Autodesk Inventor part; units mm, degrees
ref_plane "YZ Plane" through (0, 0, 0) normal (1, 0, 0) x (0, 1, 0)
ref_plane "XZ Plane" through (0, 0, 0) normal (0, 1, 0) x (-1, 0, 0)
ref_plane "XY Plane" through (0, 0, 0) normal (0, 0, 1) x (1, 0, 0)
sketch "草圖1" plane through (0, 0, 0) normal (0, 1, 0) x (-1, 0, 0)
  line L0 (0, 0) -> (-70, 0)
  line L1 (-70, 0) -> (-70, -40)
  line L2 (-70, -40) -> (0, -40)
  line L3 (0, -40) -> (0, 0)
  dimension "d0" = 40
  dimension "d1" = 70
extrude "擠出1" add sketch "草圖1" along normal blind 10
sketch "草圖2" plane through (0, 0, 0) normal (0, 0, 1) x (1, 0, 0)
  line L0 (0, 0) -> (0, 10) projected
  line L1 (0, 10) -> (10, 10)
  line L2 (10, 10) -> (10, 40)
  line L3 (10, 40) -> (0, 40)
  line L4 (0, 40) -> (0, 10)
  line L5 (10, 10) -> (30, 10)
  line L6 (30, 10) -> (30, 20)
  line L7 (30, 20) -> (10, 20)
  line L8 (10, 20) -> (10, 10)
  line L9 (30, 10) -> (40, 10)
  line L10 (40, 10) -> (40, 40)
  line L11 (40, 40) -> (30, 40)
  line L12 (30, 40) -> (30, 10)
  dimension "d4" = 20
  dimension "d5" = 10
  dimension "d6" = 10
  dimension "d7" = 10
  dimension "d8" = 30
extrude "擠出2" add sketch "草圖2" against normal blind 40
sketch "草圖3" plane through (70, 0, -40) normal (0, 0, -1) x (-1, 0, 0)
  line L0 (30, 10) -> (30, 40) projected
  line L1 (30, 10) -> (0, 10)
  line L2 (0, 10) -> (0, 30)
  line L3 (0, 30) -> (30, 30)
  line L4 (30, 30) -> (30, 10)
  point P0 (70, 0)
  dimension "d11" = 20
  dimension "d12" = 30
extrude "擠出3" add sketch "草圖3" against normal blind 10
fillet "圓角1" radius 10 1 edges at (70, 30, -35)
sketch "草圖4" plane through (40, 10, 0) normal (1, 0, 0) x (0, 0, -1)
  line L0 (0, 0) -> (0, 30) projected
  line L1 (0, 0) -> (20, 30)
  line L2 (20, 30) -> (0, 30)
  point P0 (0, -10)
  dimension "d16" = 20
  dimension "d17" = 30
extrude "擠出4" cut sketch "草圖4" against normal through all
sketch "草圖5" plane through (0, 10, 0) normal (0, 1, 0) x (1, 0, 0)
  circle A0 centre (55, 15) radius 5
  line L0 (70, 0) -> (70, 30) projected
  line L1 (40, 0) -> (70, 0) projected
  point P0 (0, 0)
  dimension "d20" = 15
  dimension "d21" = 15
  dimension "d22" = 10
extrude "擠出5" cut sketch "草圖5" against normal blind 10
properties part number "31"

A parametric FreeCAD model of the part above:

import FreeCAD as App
import Part
import Sketcher
Q = App.Units.Quantity


def edges_at(feature, points):
    """Names of the edges that pass closest to the given points."""
    edges = feature.Shape.Edges
    near = lambda p: min(range(len(edges)), key=lambda i: edges[i].distToShape(Part.Vertex(*p))[0])
    return sorted({f"Edge{near(p) + 1}" for p in points})


def add_polygon(sketch, points):
    """Adds a closed chain of lines whose ends are joined by coincident constraints."""
    first, n = sketch.GeometryCount, len(points)
    for a, b in zip(points, points[1:] + points[:1]):
        sketch.addGeometry(Part.LineSegment(App.Vector(*a, 0), App.Vector(*b, 0)), False)
    for i in range(n):
        sketch.addConstraint(Sketcher.Constraint("Coincident", first + i, 2, first + (i + 1) % n, 1))

doc = App.newDocument("Part")
body = doc.addObject("PartDesign::Body", "Body")

# Sketch on XZ plane
sketch1 = body.newObject("Sketcher::SketchObject", "Sketch")
sketch1.AttachmentSupport = (doc.getObject("XZ_Plane"), [""])
sketch1.MapMode = "FlatFace"
add_polygon(sketch1, [(0, -40), (0, 0), (70, 0), (70, -40)])  # lines 0-3
sketch1.addConstraint(Sketcher.Constraint("Vertical", 0))
sketch1.addConstraint(Sketcher.Constraint("Horizontal", 1))
sketch1.addConstraint(Sketcher.Constraint("Vertical", 2))
sketch1.addConstraint(Sketcher.Constraint("Horizontal", 3))
sketch1.addConstraint(Sketcher.Constraint("Coincident", 0, 2, -1, 1))
sketch1.addConstraint(Sketcher.Constraint("DistanceX", 1, 1, 1, 2, Q("70 mm")))
sketch1.addConstraint(Sketcher.Constraint("DistanceY", 0, 1, 0, 2, Q("40 mm")))
pad1 = body.newObject("PartDesign::Pad", "Pad")
pad1.Profile = sketch1
pad1.Length = 10
pad1.Reversed = True

# Sketch on XY plane
sketch2 = body.newObject("Sketcher::SketchObject", "Sketch001")
sketch2.AttachmentSupport = (doc.getObject("XY_Plane"), [""])
sketch2.MapMode = "FlatFace"
add_polygon(sketch2, [(0, 40), (0, 10), (40, 10), (40, 40), (30, 40), (30, 20), (10, 20), (10, 40)])  # lines 0-7
sketch2.addConstraint(Sketcher.Constraint("Vertical", 0))
sketch2.addConstraint(Sketcher.Constraint("Horizontal", 1))
sketch2.addConstraint(Sketcher.Constraint("Vertical", 2))
sketch2.addConstraint(Sketcher.Constraint("Horizontal", 3))
sketch2.addConstraint(Sketcher.Constraint("Vertical", 4))
sketch2.addConstraint(Sketcher.Constraint("Horizontal", 5))
sketch2.addConstraint(Sketcher.Constraint("Vertical", 6))
sketch2.addConstraint(Sketcher.Constraint("Horizontal", 7))
sketch2.addConstraint(Sketcher.Constraint("PointOnObject", 0, 2, -2))
sketch2.addConstraint(Sketcher.Constraint("Horizontal", 3, 2, 6, 2))
sketch2.addConstraint(Sketcher.Constraint("Equal", 3, 7))
sketch2.addConstraint(Sketcher.Constraint("Equal", 5, 4))
sketch2.addConstraint(Sketcher.Constraint("DistanceX", 3, 2, 3, 1, Q("10 mm")))
sketch2.addConstraint(Sketcher.Constraint("DistanceX", 5, 2, 5, 1, Q("20 mm")))
sketch2.addConstraint(Sketcher.Constraint("DistanceY", 0, 2, 0, 1, Q("30 mm")))
sketch2.addConstraint(Sketcher.Constraint("DistanceY", -1, 1, 0, 2, Q("10 mm")))
pad2 = body.newObject("PartDesign::Pad", "Pad001")
pad2.Profile = sketch2
pad2.Length = 40
pad2.Reversed = True

# Sketch on XY plane
sketch3 = body.newObject("Sketcher::SketchObject", "Sketch002")
sketch3.AttachmentSupport = (doc.getObject("XY_Plane"), [""])
sketch3.MapMode = "FlatFace"
sketch3.AttachmentOffset = App.Placement(App.Vector(0, 0, -40), App.Rotation())
add_polygon(sketch3, [(70, 10), (40, 10), (40, 30), (70, 30)])  # lines 0-3
sketch3.addConstraint(Sketcher.Constraint("Horizontal", 0))
sketch3.addConstraint(Sketcher.Constraint("Vertical", 1))
sketch3.addConstraint(Sketcher.Constraint("Horizontal", 2))
sketch3.addConstraint(Sketcher.Constraint("Vertical", 3))
sketch3.addConstraint(Sketcher.Constraint("DistanceX", 0, 2, 0, 1, Q("30 mm")))
sketch3.addConstraint(Sketcher.Constraint("DistanceY", 1, 1, 1, 2, Q("20 mm")))
sketch3.addConstraint(Sketcher.Constraint("DistanceY", -1, 1, 1, 2, Q("30 mm")))
sketch3.addConstraint(Sketcher.Constraint("DistanceX", -1, 1, 0, 2, Q("40 mm")))
pad3 = body.newObject("PartDesign::Pad", "Pad002")
pad3.Profile = sketch3
pad3.Length = 10
doc.recompute()

fillet = body.newObject("PartDesign::Fillet", "Fillet")
fillet.Base = (pad3, edges_at(pad3, [(70, 30, -35)]))
fillet.Radius = 10

# Sketch on YZ plane
sketch4 = body.newObject("Sketcher::SketchObject", "Sketch003")
sketch4.AttachmentSupport = (doc.getObject("YZ_Plane"), [""])
sketch4.MapMode = "FlatFace"
sketch4.AttachmentOffset = App.Placement(App.Vector(0, 0, 40), App.Rotation())
add_polygon(sketch4, [(40, 0), (10, 0), (40, -20)])  # lines 0-2
sketch4.addConstraint(Sketcher.Constraint("Horizontal", 0))
sketch4.addConstraint(Sketcher.Constraint("Vertical", 2))
sketch4.addConstraint(Sketcher.Constraint("PointOnObject", 0, 2, -1))
sketch4.addConstraint(Sketcher.Constraint("DistanceX", 0, 2, 0, 1, Q("30 mm")))
sketch4.addConstraint(Sketcher.Constraint("DistanceY", 2, 1, 2, 2, Q("20 mm")))
sketch4.addConstraint(Sketcher.Constraint("DistanceX", -1, 1, 0, 2, Q("10 mm")))
pocket1 = body.newObject("PartDesign::Pocket", "Pocket")
pocket1.Profile = sketch4
pocket1.Type = "ThroughAll"

# Sketch on XZ plane
sketch5 = body.newObject("Sketcher::SketchObject", "Sketch004")
sketch5.AttachmentSupport = (doc.getObject("XZ_Plane"), [""])
sketch5.MapMode = "FlatFace"
sketch5.AttachmentOffset = App.Placement(App.Vector(0, 0, -10), App.Rotation())
sketch5.addGeometry(Part.Circle(App.Vector(55, -15, 0), App.Vector(0, 0, 1), 5), False)
sketch5.addConstraint(Sketcher.Constraint("Diameter", 0, Q("10 mm")))
sketch5.addConstraint(Sketcher.Constraint("DistanceY", 0, 3, -1, 1, Q("15 mm")))
sketch5.addConstraint(Sketcher.Constraint("DistanceX", -1, 1, 0, 3, Q("55 mm")))
pocket2 = body.newObject("PartDesign::Pocket", "Pocket001")
pocket2.Profile = sketch5
pocket2.Length = 10
pocket2.Reversed = True

doc.recompute()
